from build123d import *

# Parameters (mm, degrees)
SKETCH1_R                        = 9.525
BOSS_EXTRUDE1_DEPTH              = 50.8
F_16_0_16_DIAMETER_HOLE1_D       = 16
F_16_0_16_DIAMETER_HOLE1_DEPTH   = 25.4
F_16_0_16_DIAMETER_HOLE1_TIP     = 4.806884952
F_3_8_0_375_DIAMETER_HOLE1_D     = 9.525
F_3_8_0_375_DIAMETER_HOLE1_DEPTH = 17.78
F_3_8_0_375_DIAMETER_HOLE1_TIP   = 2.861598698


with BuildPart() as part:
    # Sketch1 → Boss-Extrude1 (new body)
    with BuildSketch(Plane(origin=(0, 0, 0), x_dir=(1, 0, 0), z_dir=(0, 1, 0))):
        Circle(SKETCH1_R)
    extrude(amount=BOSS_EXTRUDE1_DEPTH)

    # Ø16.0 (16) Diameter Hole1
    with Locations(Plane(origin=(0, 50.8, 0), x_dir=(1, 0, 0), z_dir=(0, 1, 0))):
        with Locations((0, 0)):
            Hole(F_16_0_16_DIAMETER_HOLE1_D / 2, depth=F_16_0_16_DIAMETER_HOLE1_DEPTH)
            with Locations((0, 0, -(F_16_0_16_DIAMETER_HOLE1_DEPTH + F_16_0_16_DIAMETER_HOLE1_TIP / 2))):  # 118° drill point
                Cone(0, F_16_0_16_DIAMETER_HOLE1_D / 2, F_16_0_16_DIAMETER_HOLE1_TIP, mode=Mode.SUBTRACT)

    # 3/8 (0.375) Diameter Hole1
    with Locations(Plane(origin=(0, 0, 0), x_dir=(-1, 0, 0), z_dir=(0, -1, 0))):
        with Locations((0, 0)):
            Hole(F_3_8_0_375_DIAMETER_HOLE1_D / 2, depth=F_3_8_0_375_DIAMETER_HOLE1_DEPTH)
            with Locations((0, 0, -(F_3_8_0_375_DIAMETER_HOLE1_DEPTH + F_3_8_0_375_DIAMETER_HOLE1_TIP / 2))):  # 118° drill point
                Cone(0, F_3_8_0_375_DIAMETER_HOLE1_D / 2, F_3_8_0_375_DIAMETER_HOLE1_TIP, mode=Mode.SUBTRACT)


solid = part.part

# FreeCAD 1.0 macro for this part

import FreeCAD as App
import Part
import Sketcher
from FreeCAD import Vector
Q = App.Units.Quantity

doc = App.newDocument("Part")
body = doc.addObject("PartDesign::Body", "Body")

# Sketch on XZ plane
sketch1 = doc.addObject("Sketcher::SketchObject", "Sketch")
body.addObject(sketch1)
sketch1.AttachmentSupport = (doc.XZ_Plane, [""])
sketch1.MapMode = "FlatFace"
sketch1.addGeometry(Part.Circle(Vector(0, 0, 0), Vector(0, 0, 1), 9.525), False)
sketch1.addConstraint(Sketcher.Constraint("Coincident", 0, 3, -1, 1))
sketch1.addConstraint(Sketcher.Constraint("Diameter", 0, Q("0.75 in")))
pad1 = doc.addObject("PartDesign::Pad", "Pad")
body.addObject(pad1)
pad1.Profile = sketch1
pad1.Length = Q("2 in")
pad1.Reversed = True

# Sketch on XZ plane
sketch2 = doc.addObject("Sketcher::SketchObject", "Sketch001")
body.addObject(sketch2)
sketch2.AttachmentSupport = (doc.XZ_Plane, [""])
sketch2.MapMode = "FlatFace"
sketch2.AttachmentOffset = App.Placement(Vector(0, 0, -2 * 25.4), App.Rotation())
sketch2.addGeometry(Part.Circle(Vector(0, 0, 0), Vector(0, 0, 1), 8), False)
sketch2.addConstraint(Sketcher.Constraint("Coincident", 0, 3, -1, 1))
sketch2.addConstraint(Sketcher.Constraint("Diameter", 0, 16.0))
doc.recompute()
hole = doc.addObject("PartDesign::Hole", "Hole")
body.addObject(hole)
hole.Profile = sketch2
hole.ThreadType = "None"
hole.Diameter = 16
hole.DepthType = "Dimension"
hole.Depth = Q("1 in")
hole.DrillPoint = "Angled"
hole.DrillPointAngle = 118
hole.Reversed = True

# Sketch on XZ plane
sketch3 = doc.addObject("Sketcher::SketchObject", "Sketch002")
body.addObject(sketch3)
sketch3.AttachmentSupport = (doc.XZ_Plane, [""])
sketch3.MapMode = "FlatFace"
sketch3.addGeometry(Part.Circle(Vector(0, 0, 0), Vector(0, 0, 1), 4.7625), False)
sketch3.addConstraint(Sketcher.Constraint("Coincident", 0, 3, -1, 1))
sketch3.addConstraint(Sketcher.Constraint("Diameter", 0, Q("0.375 in")))
doc.recompute()
hole2 = doc.addObject("PartDesign::Hole", "Hole001")
body.addObject(hole2)
hole2.Profile = sketch3
hole2.ThreadType = "None"
hole2.Diameter = Q("0.375 in")
hole2.DepthType = "Dimension"
hole2.Depth = Q("0.7 in")
hole2.DrillPoint = "Angled"
hole2.DrillPointAngle = 118

doc.recompute()
